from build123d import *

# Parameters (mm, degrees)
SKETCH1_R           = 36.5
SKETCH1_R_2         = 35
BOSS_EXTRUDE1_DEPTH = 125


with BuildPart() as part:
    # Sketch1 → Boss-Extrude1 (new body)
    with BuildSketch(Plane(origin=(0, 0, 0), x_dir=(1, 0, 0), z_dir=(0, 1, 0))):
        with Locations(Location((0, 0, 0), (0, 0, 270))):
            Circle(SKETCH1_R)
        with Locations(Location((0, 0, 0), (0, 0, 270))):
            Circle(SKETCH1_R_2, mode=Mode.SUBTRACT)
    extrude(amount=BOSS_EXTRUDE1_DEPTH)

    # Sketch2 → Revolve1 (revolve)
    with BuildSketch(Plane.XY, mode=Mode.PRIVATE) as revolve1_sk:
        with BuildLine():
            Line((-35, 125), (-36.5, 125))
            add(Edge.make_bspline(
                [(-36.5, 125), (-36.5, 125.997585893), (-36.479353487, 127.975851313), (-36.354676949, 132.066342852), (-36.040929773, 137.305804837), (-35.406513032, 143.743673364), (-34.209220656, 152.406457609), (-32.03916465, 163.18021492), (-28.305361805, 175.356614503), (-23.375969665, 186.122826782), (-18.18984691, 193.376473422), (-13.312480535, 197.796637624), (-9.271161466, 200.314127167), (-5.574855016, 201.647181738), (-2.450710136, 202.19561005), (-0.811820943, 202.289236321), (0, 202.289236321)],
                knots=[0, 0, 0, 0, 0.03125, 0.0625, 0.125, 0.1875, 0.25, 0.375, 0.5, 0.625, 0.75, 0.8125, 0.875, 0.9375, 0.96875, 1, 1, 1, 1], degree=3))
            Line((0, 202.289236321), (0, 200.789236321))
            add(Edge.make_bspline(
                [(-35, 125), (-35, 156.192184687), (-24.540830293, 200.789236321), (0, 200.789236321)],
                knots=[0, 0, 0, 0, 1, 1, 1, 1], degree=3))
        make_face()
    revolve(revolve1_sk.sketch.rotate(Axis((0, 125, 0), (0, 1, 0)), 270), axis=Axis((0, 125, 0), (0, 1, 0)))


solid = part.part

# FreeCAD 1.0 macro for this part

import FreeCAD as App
import Part
import Sketcher

V = App.Vector

doc = App.newDocument("Part")
body = doc.addObject("PartDesign::Body", "Body")

sketch1 = body.newObject("Sketcher::SketchObject", "Sketch")
sketch1.AttachmentSupport = (doc.getObject("XZ_Plane"), [""])
sketch1.MapMode = "FlatFace"
sketch1.addGeometry([
    Part.Circle(V(0, 0, 0), V(0, 0, 1), 36),
    Part.Circle(V(0, 0, 0), V(0, 0, 1), 35),
], False)
sketch1.addConstraint([
    Sketcher.Constraint("Coincident", 0, 3, -1, 1),
    Sketcher.Constraint("Coincident", 1, 3, -1, 1),
    Sketcher.Constraint("Diameter", 0, 73.0),
    Sketcher.Constraint("Diameter", 1, 70.0),
])
pad1 = body.newObject("PartDesign::Pad", "Pad")
pad1.Profile = sketch1
pad1.Length = 125
pad1.Reversed = True

sketch2 = body.newObject("Sketcher::SketchObject", "Sketch001")
sketch2.AttachmentSupport = (doc.getObject("XY_Plane"), [""])
sketch2.MapMode = "FlatFace"
sketch2.addGeometry([
    Part.LineSegment(V(-36.5, 125, 0), V(-35, 125, 0)),
    Part.BSplineCurve([V(-35, 125, 0), V(-35, 156.192185, 0), V(-24.54083, 200.789236, 0), V(0, 200.789236, 0)], [4, 4], [0, 1], False, 3, [1, 1, 1, 1], False),
    Part.LineSegment(V(0, 200.789236, 0), V(0, 202.289236, 0)),
    Part.BSplineCurve([V(-36.5, 125, 0), V(-36.5, 125.997586, 0), V(-36.479353, 127.975851, 0), V(-36.354677, 132.066343, 0), V(-36.04093, 137.305805, 0), V(-35.406513, 143.743673, 0), V(-34.209221, 152.406458, 0), V(-32.039165, 163.180215, 0), V(-28.305362, 175.356615, 0), V(-23.37597, 186.122827, 0), V(-18.189847, 193.376473, 0), V(-13.312481, 197.796638, 0), V(-9.271161, 200.314127, 0), V(-5.574855, 201.647182, 0), V(-2.45071, 202.19561, 0), V(-0.811821, 202.289236, 0), V(0, 202.289236, 0)], [4, 1, 1, 1, 1, 1, 1, 1, 1, 1, 1, 1, 1, 1, 4], [0, 0.03125, 0.0625, 0.125, 0.1875, 0.25, 0.375, 0.5, 0.625, 0.75, 0.8125, 0.875, 0.9375, 0.96875, 1], False, 3, [1, 1, 1, 1, 1, 1, 1, 1, 1, 1, 1, 1, 1, 1, 1, 1, 1], False),
], False)
sketch2.addConstraint([
    Sketcher.Constraint("Block", 1),
    Sketcher.Constraint("Block", 3),
    Sketcher.Constraint("Coincident", 0, 2, 1, 1),
    Sketcher.Constraint("Coincident", 1, 2, 2, 1),
    Sketcher.Constraint("Coincident", 2, 2, 3, 2),
    Sketcher.Constraint("Coincident", 3, 1, 0, 1),
])
revolution = body.newObject("PartDesign::Revolution", "Revolution")
revolution.Profile = sketch2
revolution.ReferenceAxis = (sketch2, ["V_Axis"])
revolution.Angle = 360

doc.recompute()
